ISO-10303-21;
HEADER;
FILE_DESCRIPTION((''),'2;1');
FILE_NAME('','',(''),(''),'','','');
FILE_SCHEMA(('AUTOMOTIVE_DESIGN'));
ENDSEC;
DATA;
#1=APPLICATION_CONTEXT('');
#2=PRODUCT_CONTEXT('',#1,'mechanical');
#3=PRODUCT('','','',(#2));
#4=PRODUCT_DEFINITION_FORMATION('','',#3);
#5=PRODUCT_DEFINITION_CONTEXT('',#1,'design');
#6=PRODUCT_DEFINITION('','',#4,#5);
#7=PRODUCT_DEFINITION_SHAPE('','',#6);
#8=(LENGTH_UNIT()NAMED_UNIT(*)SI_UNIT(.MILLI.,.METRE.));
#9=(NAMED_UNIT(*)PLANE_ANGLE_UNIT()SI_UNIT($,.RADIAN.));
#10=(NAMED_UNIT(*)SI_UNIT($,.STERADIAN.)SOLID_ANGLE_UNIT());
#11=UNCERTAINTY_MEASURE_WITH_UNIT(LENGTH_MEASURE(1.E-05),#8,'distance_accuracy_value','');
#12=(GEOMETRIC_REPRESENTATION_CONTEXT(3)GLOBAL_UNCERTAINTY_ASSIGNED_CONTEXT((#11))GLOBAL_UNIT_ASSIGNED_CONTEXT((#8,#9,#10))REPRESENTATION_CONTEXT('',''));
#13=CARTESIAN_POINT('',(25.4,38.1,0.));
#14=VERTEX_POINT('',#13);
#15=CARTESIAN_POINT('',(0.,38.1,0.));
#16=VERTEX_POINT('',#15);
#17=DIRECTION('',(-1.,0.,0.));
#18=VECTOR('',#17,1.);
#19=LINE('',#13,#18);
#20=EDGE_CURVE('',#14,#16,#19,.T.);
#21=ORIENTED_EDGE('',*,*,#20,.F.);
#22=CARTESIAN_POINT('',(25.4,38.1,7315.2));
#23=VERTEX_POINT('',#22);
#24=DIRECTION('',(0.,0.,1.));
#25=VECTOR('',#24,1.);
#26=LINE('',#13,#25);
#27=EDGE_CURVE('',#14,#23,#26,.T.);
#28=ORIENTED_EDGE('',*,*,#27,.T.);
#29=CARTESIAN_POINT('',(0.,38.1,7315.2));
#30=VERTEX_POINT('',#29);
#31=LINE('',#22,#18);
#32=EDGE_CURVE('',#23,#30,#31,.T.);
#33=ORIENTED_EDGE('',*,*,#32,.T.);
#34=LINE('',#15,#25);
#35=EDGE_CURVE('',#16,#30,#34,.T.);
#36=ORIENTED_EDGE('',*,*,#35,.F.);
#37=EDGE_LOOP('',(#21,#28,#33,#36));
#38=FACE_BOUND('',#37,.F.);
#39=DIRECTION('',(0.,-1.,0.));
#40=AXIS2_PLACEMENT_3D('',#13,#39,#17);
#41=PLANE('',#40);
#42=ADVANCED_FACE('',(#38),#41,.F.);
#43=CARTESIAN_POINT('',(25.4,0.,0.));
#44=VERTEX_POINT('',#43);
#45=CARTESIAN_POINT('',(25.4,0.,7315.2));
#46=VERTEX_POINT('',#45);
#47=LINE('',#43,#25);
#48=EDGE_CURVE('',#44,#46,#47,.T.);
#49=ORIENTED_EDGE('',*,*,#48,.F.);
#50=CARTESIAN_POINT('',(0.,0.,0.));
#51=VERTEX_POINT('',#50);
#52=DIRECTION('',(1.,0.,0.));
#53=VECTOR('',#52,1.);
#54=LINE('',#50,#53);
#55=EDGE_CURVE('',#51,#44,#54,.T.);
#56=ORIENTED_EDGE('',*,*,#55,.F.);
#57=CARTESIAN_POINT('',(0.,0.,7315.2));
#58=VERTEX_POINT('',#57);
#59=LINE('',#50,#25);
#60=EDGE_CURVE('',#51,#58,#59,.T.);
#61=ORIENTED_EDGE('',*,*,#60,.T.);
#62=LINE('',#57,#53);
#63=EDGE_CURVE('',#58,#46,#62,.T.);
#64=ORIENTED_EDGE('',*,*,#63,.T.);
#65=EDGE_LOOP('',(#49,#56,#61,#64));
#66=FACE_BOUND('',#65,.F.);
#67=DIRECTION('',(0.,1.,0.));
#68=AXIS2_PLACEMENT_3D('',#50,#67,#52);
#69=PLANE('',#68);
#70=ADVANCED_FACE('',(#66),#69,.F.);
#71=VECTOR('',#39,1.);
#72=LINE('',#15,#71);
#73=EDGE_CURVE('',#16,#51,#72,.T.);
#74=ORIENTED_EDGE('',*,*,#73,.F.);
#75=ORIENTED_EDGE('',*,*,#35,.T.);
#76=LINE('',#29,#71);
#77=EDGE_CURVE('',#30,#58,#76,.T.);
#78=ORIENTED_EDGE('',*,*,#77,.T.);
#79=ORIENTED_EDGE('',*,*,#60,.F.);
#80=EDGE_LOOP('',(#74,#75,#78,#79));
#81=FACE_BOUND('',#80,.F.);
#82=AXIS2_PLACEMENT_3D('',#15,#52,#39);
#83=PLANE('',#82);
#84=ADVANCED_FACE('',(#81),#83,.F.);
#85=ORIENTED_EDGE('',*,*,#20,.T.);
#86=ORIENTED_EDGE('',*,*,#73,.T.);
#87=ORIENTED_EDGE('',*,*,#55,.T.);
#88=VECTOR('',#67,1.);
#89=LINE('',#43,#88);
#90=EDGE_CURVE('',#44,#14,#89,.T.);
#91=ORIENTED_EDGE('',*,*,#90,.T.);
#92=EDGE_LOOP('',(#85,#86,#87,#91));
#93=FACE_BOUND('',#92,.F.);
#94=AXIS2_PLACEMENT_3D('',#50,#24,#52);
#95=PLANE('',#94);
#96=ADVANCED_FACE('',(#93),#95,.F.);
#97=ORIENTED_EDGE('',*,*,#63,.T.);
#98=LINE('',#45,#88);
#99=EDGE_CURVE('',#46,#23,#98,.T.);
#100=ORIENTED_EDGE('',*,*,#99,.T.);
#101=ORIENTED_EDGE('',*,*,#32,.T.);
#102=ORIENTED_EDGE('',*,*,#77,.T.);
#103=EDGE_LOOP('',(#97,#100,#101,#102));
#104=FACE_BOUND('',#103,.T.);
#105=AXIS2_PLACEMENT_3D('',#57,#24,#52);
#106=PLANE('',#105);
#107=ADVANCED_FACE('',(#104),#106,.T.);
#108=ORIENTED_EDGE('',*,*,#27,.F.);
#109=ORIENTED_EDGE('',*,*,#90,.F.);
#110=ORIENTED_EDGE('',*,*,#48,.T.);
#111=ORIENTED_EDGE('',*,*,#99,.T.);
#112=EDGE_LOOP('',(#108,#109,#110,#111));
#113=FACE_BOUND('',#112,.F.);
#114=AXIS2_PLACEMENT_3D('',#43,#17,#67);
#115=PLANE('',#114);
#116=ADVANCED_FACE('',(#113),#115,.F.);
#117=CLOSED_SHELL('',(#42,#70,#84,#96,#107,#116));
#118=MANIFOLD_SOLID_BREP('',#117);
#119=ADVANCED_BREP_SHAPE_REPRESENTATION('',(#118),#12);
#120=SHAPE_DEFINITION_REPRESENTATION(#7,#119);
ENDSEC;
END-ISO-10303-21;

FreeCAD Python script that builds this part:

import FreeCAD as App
import Part
import Sketcher
from FreeCAD import Vector
Q = App.Units.Quantity

doc = App.newDocument("Part")
body = doc.addObject("PartDesign::Body", "Body")

# Sketch on XY plane
sketch1 = body.newObject("Sketcher::SketchObject", "Sketch")
sketch1.AttachmentSupport = (doc.getObject("XY_Plane"), [""])
sketch1.MapMode = "FlatFace"
sketch1.addGeometry(Part.LineSegment(Vector(0, 38, 0), Vector(0, 0, 0)), False)
sketch1.addGeometry(Part.LineSegment(Vector(0, 0, 0), Vector(25, 0, 0)), False)
sketch1.addGeometry(Part.LineSegment(Vector(25, 0, 0), Vector(25, 38, 0)), False)
sketch1.addGeometry(Part.LineSegment(Vector(25, 38, 0), Vector(0, 38, 0)), False)
sketch1.addConstraint(Sketcher.Constraint("Coincident", 0, 2, 1, 1))
sketch1.addConstraint(Sketcher.Constraint("Coincident", 1, 2, 2, 1))
sketch1.addConstraint(Sketcher.Constraint("Coincident", 2, 2, 3, 1))
sketch1.addConstraint(Sketcher.Constraint("Coincident", 3, 2, 0, 1))
sketch1.addConstraint(Sketcher.Constraint("Vertical", 0))
sketch1.addConstraint(Sketcher.Constraint("Horizontal", 1))
sketch1.addConstraint(Sketcher.Constraint("Vertical", 2))
sketch1.addConstraint(Sketcher.Constraint("Horizontal", 3))
sketch1.addConstraint(Sketcher.Constraint("Coincident", 0, 2, -1, 1))
sketch1.addConstraint(Sketcher.Constraint("DistanceX", 1, 1, 1, 2, Q("1 in")))
sketch1.addConstraint(Sketcher.Constraint("DistanceY", 0, 2, 0, 1, Q("1.5 in")))
pad1 = body.newObject("PartDesign::Pad", "Pad")
pad1.Profile = sketch1
pad1.Length = Q("288 in")

doc.recompute()
